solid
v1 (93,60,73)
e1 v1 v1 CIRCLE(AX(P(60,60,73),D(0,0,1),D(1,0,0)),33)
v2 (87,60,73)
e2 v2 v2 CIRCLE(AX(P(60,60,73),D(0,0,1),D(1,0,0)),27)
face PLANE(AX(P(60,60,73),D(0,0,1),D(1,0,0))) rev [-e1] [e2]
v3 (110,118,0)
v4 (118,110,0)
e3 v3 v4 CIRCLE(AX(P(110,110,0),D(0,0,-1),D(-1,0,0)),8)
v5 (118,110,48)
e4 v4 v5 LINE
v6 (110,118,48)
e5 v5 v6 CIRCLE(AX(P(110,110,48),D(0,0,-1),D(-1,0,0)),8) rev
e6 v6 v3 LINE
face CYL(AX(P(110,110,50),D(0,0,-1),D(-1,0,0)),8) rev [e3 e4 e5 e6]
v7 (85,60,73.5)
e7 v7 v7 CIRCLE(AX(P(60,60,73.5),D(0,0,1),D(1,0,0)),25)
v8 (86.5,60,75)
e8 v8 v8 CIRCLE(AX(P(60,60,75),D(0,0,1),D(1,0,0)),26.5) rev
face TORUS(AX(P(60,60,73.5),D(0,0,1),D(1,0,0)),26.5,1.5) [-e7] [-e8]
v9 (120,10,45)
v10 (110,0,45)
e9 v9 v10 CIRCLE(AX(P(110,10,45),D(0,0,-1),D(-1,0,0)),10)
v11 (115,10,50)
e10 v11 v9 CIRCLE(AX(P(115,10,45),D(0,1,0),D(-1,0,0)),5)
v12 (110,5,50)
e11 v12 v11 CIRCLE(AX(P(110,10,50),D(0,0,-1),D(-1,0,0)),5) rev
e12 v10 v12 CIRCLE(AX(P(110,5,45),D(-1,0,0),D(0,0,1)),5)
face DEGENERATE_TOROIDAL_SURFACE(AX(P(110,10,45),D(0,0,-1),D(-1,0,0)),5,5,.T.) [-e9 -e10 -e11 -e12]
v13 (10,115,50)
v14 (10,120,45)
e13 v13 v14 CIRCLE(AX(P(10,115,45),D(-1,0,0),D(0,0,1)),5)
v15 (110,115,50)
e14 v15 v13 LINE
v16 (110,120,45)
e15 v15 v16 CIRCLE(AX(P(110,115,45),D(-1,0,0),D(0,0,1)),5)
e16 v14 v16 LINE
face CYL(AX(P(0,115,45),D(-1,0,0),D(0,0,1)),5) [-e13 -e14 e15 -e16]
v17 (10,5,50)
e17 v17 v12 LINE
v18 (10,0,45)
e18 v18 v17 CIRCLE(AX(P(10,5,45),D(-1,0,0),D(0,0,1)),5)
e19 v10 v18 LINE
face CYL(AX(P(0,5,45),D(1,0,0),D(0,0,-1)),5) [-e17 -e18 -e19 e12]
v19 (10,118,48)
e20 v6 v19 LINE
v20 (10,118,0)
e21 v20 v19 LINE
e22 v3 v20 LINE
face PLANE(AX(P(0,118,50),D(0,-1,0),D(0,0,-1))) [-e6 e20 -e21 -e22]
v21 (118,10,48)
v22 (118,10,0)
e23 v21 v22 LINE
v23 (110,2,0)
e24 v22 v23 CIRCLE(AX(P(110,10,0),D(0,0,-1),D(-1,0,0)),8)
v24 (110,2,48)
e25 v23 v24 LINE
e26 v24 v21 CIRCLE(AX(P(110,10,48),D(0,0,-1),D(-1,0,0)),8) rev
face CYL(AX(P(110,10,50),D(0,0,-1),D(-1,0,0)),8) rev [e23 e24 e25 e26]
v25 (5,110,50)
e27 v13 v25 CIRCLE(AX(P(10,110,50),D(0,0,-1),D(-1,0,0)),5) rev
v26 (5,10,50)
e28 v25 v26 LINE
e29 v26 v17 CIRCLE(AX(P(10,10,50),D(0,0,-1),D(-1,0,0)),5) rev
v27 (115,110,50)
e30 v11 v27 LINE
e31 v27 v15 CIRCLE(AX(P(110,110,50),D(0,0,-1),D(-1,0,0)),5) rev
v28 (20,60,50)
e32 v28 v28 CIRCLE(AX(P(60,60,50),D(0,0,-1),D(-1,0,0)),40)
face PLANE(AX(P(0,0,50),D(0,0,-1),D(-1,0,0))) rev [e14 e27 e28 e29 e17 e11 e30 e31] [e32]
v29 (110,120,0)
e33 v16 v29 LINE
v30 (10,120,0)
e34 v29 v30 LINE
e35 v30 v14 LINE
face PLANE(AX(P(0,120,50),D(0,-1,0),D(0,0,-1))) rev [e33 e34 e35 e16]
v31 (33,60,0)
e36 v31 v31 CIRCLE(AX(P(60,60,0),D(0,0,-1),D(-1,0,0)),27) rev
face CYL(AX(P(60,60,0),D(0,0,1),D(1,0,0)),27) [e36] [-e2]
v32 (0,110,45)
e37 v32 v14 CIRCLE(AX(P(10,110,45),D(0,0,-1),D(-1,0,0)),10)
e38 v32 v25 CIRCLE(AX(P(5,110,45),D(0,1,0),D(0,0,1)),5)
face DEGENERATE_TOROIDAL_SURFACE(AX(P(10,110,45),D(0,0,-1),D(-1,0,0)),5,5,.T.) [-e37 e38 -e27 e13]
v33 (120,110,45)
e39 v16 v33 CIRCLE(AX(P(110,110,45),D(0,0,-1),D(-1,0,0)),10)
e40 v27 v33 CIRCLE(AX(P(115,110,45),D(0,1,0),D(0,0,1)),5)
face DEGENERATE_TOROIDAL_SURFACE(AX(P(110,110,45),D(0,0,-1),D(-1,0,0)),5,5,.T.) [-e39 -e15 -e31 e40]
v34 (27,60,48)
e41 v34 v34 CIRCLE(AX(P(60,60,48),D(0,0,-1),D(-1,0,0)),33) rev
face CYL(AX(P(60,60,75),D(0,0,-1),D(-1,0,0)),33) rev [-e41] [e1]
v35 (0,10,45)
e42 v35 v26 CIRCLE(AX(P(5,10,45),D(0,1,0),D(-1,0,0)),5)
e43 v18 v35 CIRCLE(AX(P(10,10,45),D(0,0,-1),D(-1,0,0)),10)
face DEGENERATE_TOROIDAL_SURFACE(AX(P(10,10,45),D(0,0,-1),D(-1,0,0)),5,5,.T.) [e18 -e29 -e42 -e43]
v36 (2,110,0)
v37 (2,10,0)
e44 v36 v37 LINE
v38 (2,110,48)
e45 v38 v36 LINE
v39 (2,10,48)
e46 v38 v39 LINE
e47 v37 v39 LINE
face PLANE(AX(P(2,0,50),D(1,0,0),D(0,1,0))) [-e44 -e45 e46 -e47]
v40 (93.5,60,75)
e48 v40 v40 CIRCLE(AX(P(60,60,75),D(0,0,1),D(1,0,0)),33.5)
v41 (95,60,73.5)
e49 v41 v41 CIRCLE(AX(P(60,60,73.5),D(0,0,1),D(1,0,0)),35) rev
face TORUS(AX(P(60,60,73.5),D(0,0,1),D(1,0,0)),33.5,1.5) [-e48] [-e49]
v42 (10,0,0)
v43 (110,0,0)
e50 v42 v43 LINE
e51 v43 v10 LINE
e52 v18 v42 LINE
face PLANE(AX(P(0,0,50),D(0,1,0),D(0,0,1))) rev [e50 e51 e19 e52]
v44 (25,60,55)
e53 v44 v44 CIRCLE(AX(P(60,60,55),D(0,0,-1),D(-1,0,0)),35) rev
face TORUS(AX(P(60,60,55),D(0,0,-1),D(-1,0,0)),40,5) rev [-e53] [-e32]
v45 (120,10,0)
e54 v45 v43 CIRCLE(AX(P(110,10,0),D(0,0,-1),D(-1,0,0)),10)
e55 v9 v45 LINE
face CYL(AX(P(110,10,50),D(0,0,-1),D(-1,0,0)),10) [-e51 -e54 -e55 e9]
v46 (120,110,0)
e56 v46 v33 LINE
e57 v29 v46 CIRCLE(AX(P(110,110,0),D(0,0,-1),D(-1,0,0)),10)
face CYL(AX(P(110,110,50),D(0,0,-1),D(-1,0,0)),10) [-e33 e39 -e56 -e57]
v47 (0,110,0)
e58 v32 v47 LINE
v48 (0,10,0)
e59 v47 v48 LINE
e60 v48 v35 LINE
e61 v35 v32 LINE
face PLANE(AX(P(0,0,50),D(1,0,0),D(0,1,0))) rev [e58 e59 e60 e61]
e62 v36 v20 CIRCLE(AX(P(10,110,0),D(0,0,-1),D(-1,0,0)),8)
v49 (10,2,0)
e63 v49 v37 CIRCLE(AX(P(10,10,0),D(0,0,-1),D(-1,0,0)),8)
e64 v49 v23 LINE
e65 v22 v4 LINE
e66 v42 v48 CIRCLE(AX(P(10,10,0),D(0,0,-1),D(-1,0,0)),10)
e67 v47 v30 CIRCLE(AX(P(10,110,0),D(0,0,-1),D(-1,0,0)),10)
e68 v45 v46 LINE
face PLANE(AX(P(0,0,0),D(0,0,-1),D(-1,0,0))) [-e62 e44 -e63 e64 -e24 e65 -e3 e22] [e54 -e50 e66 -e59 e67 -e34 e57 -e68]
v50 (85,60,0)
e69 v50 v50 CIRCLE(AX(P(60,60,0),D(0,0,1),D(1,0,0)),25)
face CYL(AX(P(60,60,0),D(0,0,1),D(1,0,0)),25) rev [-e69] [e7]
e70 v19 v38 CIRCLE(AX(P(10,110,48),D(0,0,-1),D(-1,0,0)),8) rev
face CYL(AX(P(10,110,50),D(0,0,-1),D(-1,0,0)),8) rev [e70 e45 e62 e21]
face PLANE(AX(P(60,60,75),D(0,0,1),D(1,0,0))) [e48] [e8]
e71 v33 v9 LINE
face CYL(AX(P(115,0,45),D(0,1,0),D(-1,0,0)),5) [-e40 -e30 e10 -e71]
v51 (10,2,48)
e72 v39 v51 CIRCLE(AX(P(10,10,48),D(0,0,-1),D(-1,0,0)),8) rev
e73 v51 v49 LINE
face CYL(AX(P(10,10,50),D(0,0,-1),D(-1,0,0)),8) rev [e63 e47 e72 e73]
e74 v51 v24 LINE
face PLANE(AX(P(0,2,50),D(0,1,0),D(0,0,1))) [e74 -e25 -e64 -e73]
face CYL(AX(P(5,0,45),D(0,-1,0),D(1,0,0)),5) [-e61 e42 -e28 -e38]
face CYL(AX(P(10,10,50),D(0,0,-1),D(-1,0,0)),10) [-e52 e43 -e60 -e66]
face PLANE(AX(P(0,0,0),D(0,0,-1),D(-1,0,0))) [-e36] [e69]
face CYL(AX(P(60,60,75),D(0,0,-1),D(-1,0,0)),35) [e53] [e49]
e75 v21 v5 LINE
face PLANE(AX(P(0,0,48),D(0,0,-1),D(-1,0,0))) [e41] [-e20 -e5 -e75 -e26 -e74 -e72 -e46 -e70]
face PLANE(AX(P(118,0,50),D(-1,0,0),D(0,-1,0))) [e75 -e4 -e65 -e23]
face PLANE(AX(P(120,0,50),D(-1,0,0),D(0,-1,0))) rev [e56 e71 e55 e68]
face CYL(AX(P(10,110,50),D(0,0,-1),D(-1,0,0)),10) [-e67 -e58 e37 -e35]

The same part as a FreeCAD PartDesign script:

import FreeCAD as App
import Part
import Sketcher
from FreeCAD import Vector
Q = App.Units.Quantity


def edges_at(feature, points):
    """Names of the edges that pass closest to the given points."""
    edges = feature.Shape.Edges
    near = lambda p: min(range(len(edges)), key=lambda i: edges[i].distToShape(Part.Vertex(*p))[0])
    return sorted({f"Edge{near(p) + 1}" for p in points})


def faces_at(feature, points):
    """Names of the faces that lie closest to the given points."""
    faces = feature.Shape.Faces
    near = lambda p: min(range(len(faces)), key=lambda i: faces[i].distToShape(Part.Vertex(*p))[0])
    return sorted({f"Face{near(p) + 1}" for p in points})


def add_polygon(sketch, points):
    """Adds a closed chain of lines whose ends are joined by coincident constraints."""
    first, n = sketch.GeometryCount, len(points)
    for a, b in zip(points, points[1:] + points[:1]):
        sketch.addGeometry(Part.LineSegment(App.Vector(*a, 0), App.Vector(*b, 0)), False)
    for i in range(n):
        sketch.addConstraint(Sketcher.Constraint("Coincident", first + i, 2, first + (i + 1) % n, 1))

doc = App.newDocument("Part")
body = doc.addObject("PartDesign::Body", "Body")

sketch1 = body.newObject("Sketcher::SketchObject", "Sketch")
sketch1.AttachmentSupport = (doc.getObject("XY_Plane"), [""])
sketch1.MapMode = "FlatFace"
add_polygon(sketch1, [(0, 120), (0, 0), (120, 0), (120, 120)])
sketch1.addConstraint([
    Sketcher.Constraint("Vertical", 0),
    Sketcher.Constraint("Horizontal", 1),
    Sketcher.Constraint("Vertical", 2),
    Sketcher.Constraint("Horizontal", 3),
    Sketcher.Constraint("Coincident", 0, 2, -1, 1),
    Sketcher.Constraint("Equal", 3, 0),
    Sketcher.Constraint("DistanceX", 1, 1, 1, 2, Q("120 mm")),
])
pad1 = body.newObject("PartDesign::Pad", "Pad")
pad1.Profile = sketch1
pad1.Length = 50

sketch2 = body.newObject("Sketcher::SketchObject", "Sketch001")
sketch2.AttachmentSupport = (doc.getObject("XY_Plane"), [""])
sketch2.MapMode = "FlatFace"
sketch2.AttachmentOffset = App.Placement(Vector(0, 0, 50), App.Rotation())
sketch2.addGeometry(Part.Circle(Vector(60, 60, 0), Vector(0, 0, 1), 35), False)
sketch2.addConstraint([
    Sketcher.Constraint("Diameter", 0, Q("70 mm")),
    Sketcher.Constraint("DistanceX", -1, 1, 0, 3, Q("60 mm")),
    Sketcher.Constraint("DistanceY", -1, 1, 0, 3, Q("60 mm")),
])
pad2 = body.newObject("PartDesign::Pad", "Pad001")
pad2.Profile = sketch2
pad2.Length = 25

sketch3 = body.newObject("Sketcher::SketchObject", "Sketch002")
sketch3.AttachmentSupport = (doc.getObject("XY_Plane"), [""])
sketch3.MapMode = "FlatFace"
sketch3.AttachmentOffset = App.Placement(Vector(0, 0, 75), App.Rotation())
sketch3.addGeometry(Part.Circle(Vector(60, 60, 0), Vector(0, 0, 1), 25), False)
sketch3.addConstraint([
    Sketcher.Constraint("Diameter", 0, Q("50 mm")),
    Sketcher.Constraint("DistanceX", -1, 1, 0, 3, Q("60 mm")),
    Sketcher.Constraint("DistanceY", -1, 1, 0, 3, Q("60 mm")),
])
pocket1 = body.newObject("PartDesign::Pocket", "Pocket")
pocket1.Profile = sketch3
pocket1.Type = "ThroughAll"
doc.recompute()

fillet = body.newObject("PartDesign::Fillet", "Fillet")
fillet.Base = (pocket1, edges_at(pocket1, [
    (0, 120, 25),
    (120, 120, 25),
    (120, 0, 25),
    (0, 0, 25),
]))
fillet.Radius = 10
doc.recompute()

thickness = body.newObject("PartDesign::Thickness", "Thickness")
thickness.Base = (fillet, faces_at(fillet, [(36, 36, 0)]))
thickness.Value = 2
thickness.Reversed = True
thickness.Join = "Intersection"
doc.recompute()

fillet2 = body.newObject("PartDesign::Fillet", "Fillet001")
fillet2.Base = (thickness, edges_at(thickness, [(25, 60, 75), (35, 60, 75)]))
fillet2.Radius = 1.5
doc.recompute()

fillet3 = body.newObject("PartDesign::Fillet", "Fillet002")
fillet3.Base = (fillet2, edges_at(fillet2, [
    (25, 60, 50),
    (60, 0, 50),
    (0, 60, 50),
    (120, 60, 50),
    (60, 120, 50),
    (117.071, 117.071, 50),
    (117.071, 2.929, 50),
    (2.929, 117.071, 50),
    (2.929, 2.929, 50),
]))
fillet3.Radius = 5

doc.recompute()
